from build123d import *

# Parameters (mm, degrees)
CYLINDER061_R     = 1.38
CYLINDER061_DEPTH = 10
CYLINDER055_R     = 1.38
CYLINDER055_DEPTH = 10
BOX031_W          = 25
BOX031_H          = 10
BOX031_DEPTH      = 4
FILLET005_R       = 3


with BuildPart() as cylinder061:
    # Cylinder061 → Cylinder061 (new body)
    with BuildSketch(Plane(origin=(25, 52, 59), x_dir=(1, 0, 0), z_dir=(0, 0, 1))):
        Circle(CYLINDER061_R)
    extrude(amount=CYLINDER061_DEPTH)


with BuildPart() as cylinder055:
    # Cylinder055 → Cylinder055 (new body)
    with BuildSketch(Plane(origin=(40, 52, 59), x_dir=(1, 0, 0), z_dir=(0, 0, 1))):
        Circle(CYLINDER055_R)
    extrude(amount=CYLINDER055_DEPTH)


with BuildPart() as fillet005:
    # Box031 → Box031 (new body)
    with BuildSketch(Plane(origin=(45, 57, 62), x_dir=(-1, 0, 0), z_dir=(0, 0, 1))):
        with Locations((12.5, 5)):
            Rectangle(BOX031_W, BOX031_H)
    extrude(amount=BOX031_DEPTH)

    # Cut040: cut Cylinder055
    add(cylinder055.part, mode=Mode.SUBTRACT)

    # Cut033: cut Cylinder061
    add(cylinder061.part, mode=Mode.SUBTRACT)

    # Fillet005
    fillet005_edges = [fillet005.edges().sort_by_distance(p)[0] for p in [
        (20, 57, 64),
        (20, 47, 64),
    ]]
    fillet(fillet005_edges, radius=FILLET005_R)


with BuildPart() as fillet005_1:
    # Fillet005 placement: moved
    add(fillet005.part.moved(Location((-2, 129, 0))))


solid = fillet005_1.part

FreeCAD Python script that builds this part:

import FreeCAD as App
import Part
import Sketcher

V = App.Vector
Q = App.Units.Quantity


def edges_at(feature, points):
    """Names of the edges that pass closest to the given points."""
    edges = feature.Shape.Edges
    near = lambda p: min(range(len(edges)), key=lambda i: edges[i].distToShape(Part.Vertex(*p))[0])
    return sorted({f"Edge{near(p) + 1}" for p in points})


def add_polygon(sketch, points):
    """Adds a closed chain of lines whose ends are joined by coincident constraints."""
    first, n = sketch.GeometryCount, len(points)
    for a, b in zip(points, points[1:] + points[:1]):
        sketch.addGeometry(Part.LineSegment(App.Vector(*a, 0), App.Vector(*b, 0)), False)
    for i in range(n):
        sketch.addConstraint(Sketcher.Constraint("Coincident", first + i, 2, first + (i + 1) % n, 1))

doc = App.newDocument("Part")
body = doc.addObject("PartDesign::Body", "Body")

# Sketch on XY plane
sketch1 = body.newObject("Sketcher::SketchObject", "Sketch")
sketch1.AttachmentSupport = (doc.getObject("XY_Plane"), [""])
sketch1.MapMode = "FlatFace"
sketch1.AttachmentOffset = App.Placement(V(0, 0, 59), App.Rotation())
sketch1.addGeometry(Part.Circle(V(25, 52, 0), V(0, 0, 1), 1.4), False)
sketch1.addConstraint([
    Sketcher.Constraint("Diameter", 0, Q("2.76 mm")),
    Sketcher.Constraint("DistanceX", -1, 1, 0, 3, Q("25 mm")),
    Sketcher.Constraint("DistanceY", -1, 1, 0, 3, Q("52 mm")),
])
pad1 = body.newObject("PartDesign::Pad", "Pad")
pad1.Profile = sketch1
pad1.Length = 10
body2 = doc.addObject("PartDesign::Body", "Body001")

# Sketch on XY plane
sketch2 = body2.newObject("Sketcher::SketchObject", "Sketch001")
sketch2.AttachmentSupport = (doc.getObject("XY_Plane001"), [""])
sketch2.MapMode = "FlatFace"
sketch2.AttachmentOffset = App.Placement(V(0, 0, 59), App.Rotation())
sketch2.addGeometry(Part.Circle(V(40, 52, 0), V(0, 0, 1), 1.4), False)
sketch2.addConstraint([
    Sketcher.Constraint("Diameter", 0, Q("2.76 mm")),
    Sketcher.Constraint("DistanceX", -1, 1, 0, 3, Q("40 mm")),
    Sketcher.Constraint("DistanceY", -1, 1, 0, 3, Q("52 mm")),
])
pad2 = body2.newObject("PartDesign::Pad", "Pad001")
pad2.Profile = sketch2
pad2.Length = 10
body3 = doc.addObject("PartDesign::Body", "Body002")

# Sketch on XY plane
sketch3 = body3.newObject("Sketcher::SketchObject", "Sketch002")
sketch3.AttachmentSupport = (doc.getObject("XY_Plane002"), [""])
sketch3.MapMode = "FlatFace"
sketch3.AttachmentOffset = App.Placement(V(0, 0, 62), App.Rotation())
add_polygon(sketch3, [(45, 47), (45, 57), (20, 57), (20, 47)])  # lines 0-3
sketch3.addConstraint([
    Sketcher.Constraint("Vertical", 0),
    Sketcher.Constraint("Horizontal", 1),
    Sketcher.Constraint("Vertical", 2),
    Sketcher.Constraint("Horizontal", 3),
    Sketcher.Constraint("DistanceX", 1, 2, 1, 1, Q("25 mm")),
    Sketcher.Constraint("DistanceY", 0, 1, 0, 2, Q("10 mm")),
    Sketcher.Constraint("DistanceX", -1, 1, 0, 2, Q("45 mm")),
    Sketcher.Constraint("DistanceY", -1, 1, 0, 2, Q("57 mm")),
])
pad3 = body3.newObject("PartDesign::Pad", "Pad002")
pad3.Profile = sketch3
pad3.Length = 4
doc.recompute()

boolean = body3.newObject("PartDesign::Boolean", "Boolean")
boolean.Type = "Cut"
boolean.addObjects([body2])
doc.recompute()

boolean2 = body3.newObject("PartDesign::Boolean", "Boolean001")
boolean2.Type = "Cut"
boolean2.addObjects([body])
doc.recompute()

fillet = body3.newObject("PartDesign::Fillet", "Fillet")
fillet.Base = (boolean2, edges_at(boolean2, [(20, 57, 64), (20, 47, 64)]))
fillet.Radius = 3
body4 = doc.addObject("PartDesign::Body", "Body003")
doc.recompute()

body3.Placement = App.Placement(V(-2, 129, 0), App.Rotation(V(0, 0, 1), 0))
boolean3 = body4.newObject("PartDesign::Boolean", "Boolean002")
boolean3.Type = "Fuse"
boolean3.addObjects([body3])

doc.recompute()
